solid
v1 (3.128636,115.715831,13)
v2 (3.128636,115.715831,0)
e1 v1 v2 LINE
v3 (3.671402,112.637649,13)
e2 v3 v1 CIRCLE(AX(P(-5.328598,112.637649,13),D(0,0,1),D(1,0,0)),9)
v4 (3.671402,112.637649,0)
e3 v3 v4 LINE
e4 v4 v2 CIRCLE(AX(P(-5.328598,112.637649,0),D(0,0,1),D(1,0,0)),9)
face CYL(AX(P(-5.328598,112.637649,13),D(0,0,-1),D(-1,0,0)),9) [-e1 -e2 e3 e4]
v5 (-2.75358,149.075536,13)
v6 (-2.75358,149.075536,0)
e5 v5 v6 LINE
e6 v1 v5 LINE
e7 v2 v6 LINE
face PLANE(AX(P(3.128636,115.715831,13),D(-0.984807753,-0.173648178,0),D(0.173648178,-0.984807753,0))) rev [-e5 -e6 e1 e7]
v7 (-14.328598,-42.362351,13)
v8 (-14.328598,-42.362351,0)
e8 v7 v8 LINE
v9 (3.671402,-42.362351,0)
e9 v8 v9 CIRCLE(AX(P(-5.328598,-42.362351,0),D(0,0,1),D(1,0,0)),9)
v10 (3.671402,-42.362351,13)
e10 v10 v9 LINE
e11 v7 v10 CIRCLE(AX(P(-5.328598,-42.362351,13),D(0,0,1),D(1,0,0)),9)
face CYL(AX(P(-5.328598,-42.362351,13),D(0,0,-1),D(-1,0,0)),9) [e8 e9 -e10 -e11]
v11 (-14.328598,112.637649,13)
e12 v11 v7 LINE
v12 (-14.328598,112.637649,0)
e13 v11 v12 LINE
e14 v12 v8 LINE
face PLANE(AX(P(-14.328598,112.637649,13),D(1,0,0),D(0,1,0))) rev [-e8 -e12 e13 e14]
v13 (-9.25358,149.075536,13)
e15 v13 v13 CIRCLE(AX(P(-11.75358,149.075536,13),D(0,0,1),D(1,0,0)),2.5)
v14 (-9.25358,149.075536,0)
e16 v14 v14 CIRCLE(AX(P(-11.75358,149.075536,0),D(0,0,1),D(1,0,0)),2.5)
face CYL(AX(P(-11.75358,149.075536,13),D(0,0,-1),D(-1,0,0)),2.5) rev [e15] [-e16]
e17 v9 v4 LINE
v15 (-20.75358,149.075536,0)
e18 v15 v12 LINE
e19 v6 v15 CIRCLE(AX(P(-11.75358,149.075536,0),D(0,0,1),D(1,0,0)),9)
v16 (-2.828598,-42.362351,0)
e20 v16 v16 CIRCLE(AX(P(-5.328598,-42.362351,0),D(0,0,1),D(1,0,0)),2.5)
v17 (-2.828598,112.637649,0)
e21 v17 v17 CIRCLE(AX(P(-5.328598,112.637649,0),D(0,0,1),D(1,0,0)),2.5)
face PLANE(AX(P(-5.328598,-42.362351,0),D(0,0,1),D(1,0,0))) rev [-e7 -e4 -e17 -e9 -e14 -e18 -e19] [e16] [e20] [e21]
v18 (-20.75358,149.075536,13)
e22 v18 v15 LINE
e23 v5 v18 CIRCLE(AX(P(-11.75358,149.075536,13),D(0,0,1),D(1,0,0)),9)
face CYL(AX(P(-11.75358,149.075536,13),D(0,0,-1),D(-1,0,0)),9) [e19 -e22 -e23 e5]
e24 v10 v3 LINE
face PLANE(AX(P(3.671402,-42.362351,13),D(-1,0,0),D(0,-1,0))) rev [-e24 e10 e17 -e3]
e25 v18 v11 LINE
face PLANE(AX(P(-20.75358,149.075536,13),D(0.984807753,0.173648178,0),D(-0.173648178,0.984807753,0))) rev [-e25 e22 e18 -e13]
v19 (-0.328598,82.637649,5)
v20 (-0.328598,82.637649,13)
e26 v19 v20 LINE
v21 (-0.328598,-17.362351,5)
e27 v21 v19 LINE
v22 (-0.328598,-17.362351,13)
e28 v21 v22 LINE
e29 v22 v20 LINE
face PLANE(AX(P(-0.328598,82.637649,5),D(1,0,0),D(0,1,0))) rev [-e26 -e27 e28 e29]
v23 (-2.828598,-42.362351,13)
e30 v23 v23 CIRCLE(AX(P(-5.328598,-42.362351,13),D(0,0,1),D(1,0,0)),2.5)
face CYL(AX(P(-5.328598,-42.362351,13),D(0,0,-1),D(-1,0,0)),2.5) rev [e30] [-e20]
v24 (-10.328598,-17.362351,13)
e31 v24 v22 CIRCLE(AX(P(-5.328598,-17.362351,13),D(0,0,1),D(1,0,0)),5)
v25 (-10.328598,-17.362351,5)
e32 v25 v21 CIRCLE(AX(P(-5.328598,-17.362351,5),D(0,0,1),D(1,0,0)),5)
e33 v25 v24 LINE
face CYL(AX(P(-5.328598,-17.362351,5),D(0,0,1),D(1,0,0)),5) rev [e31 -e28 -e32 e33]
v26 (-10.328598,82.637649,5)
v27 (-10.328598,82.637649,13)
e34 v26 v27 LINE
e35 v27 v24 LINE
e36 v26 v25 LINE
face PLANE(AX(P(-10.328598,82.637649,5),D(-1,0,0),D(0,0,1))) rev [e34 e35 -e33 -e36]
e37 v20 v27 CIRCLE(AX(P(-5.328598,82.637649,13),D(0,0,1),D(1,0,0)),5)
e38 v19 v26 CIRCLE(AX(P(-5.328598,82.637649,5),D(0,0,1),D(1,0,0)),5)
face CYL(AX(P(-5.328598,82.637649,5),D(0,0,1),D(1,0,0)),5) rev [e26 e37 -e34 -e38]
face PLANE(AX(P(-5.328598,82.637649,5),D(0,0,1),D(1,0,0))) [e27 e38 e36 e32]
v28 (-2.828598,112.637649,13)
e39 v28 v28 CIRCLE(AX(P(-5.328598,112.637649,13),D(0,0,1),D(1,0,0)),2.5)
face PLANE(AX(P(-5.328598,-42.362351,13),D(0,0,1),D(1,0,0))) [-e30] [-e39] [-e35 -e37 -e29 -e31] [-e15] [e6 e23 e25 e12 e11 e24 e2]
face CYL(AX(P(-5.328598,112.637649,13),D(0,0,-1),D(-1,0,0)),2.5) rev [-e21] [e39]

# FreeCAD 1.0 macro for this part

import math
import FreeCAD as App
import Part
import Sketcher
Q = App.Units.Quantity

doc = App.newDocument("Part")
body = doc.addObject("PartDesign::Body", "Body")

# Sketch on XY plane
sketch1 = doc.addObject("Sketcher::SketchObject", "Sketch")
body.addObject(sketch1)
sketch1.AttachmentSupport = (doc.XY_Plane, [""])
sketch1.MapMode = "FlatFace"
sketch1.addGeometry([
    Part.LineSegment(App.Vector(-14.3, 112.6, 0), App.Vector(-14.3, -42.4, 0)),  # 0
    Part.ArcOfCircle(Part.Circle(App.Vector(-5.3, -42.4, 0), App.Vector(0, 0, 1), 9), math.radians(180), math.radians(360)),  # 1
    Part.LineSegment(App.Vector(3.7, -42.4, 0), App.Vector(3.7, 112.6, 0)),  # 2
    Part.ArcOfCircle(Part.Circle(App.Vector(-5.3, 112.6, 0), App.Vector(0, 0, 1), 9), math.radians(0), math.radians(20)),  # 3
    Part.LineSegment(App.Vector(3.1, 115.7, 0), App.Vector(-2.8, 149.1, 0)),  # 4
    Part.ArcOfCircle(Part.Circle(App.Vector(-11.8, 149.1, 0), App.Vector(0, 0, 1), 9), math.radians(0), math.radians(180)),  # 5
    Part.LineSegment(App.Vector(-20.8, 149.1, 0), App.Vector(-14.3, 112.6, 0)),  # 6
    Part.Circle(App.Vector(-5.3, -42.4, 0), App.Vector(0, 0, 1), 2.5),  # 7
    Part.Circle(App.Vector(-11.8, 149.1, 0), App.Vector(0, 0, 1), 2.5),  # 8
    Part.Circle(App.Vector(-5.3, 112.6, 0), App.Vector(0, 0, 1), 2.5),  # 9
], False)
sketch1.addConstraint([
    Sketcher.Constraint("Tangent", 0, 2, 1, 1),
    Sketcher.Constraint("Tangent", 1, 2, 2, 1),
    Sketcher.Constraint("Tangent", 2, 2, 3, 1),
    Sketcher.Constraint("Coincident", 3, 2, 4, 1),
    Sketcher.Constraint("Coincident", 4, 2, 5, 1),
    Sketcher.Constraint("Coincident", 5, 2, 6, 1),
    Sketcher.Constraint("Coincident", 6, 2, 0, 1),
    Sketcher.Constraint("Vertical", 0),
    Sketcher.Constraint("Vertical", 2),
    Sketcher.Constraint("Coincident", 7, 3, 1, 3),
    Sketcher.Constraint("Coincident", 8, 3, 5, 3),
    Sketcher.Constraint("Coincident", 9, 3, 3, 3),
    Sketcher.Constraint("Equal", 1, 3),
    Sketcher.Constraint("Equal", 3, 5),
    Sketcher.Constraint("Equal", 7, 8),
    Sketcher.Constraint("Equal", 8, 9),
    Sketcher.Constraint("Parallel", 4, 6),
    Sketcher.Constraint("Horizontal", 8, 3, 4, 2),
    Sketcher.Constraint("Horizontal", 4, 2, 5, 2),
    Sketcher.Constraint("Horizontal", 2, 2, 6, 2),
    Sketcher.Constraint("Diameter", 7, 5.0),
    Sketcher.Constraint("Radius", 1, 9.0),
    Sketcher.Constraint("DistanceY", 0, 2, 0, 1, 155.0),
    Sketcher.Constraint("Angle", 4, Q("100 deg")),
    Sketcher.Constraint("Distance", 6, 37.0),
    Sketcher.Constraint("DistanceY", 1, 3, -1, 1, 42.362351),
    Sketcher.Constraint("DistanceX", 5, 3, -1, 1, 11.75358),
])
pad1 = doc.addObject("PartDesign::Pad", "Pad")
body.addObject(pad1)
pad1.Profile = sketch1
pad1.Length = 13

# Sketch on XY plane
sketch2 = doc.addObject("Sketcher::SketchObject", "Sketch001")
body.addObject(sketch2)
sketch2.AttachmentSupport = (doc.XY_Plane, [""])
sketch2.MapMode = "FlatFace"
sketch2.AttachmentOffset = App.Placement(App.Vector(0, 0, 13), App.Rotation())
sketch2.addGeometry([
    Part.LineSegment(App.Vector(0, -17, 0), App.Vector(0, 83, 0)),
    Part.ArcOfCircle(Part.Circle(App.Vector(-5, 83, 0), App.Vector(0, 0, 1), 5), math.radians(0), math.radians(180)),
    Part.LineSegment(App.Vector(-10, 83, 0), App.Vector(-10, -17, 0)),
    Part.ArcOfCircle(Part.Circle(App.Vector(-5, -17, 0), App.Vector(0, 0, 1), 5), math.radians(180), math.radians(360)),
], False)
sketch2.addConstraint([
    Sketcher.Constraint("Tangent", 0, 2, 1, 1),
    Sketcher.Constraint("Tangent", 1, 2, 2, 1),
    Sketcher.Constraint("Tangent", 2, 2, 3, 1),
    Sketcher.Constraint("Tangent", 3, 2, 0, 1),
    Sketcher.Constraint("Vertical", 0),
    Sketcher.Constraint("Vertical", 2),
    Sketcher.Constraint("Radius", 1, 5.0),
    Sketcher.Constraint("DistanceY", 0, 1, 0, 2, 100.0),
    Sketcher.Constraint("DistanceY", -1, 1, 1, 3, 82.637649),
    Sketcher.Constraint("DistanceX", 1, 3, -1, 1, 5.328598),
])
pocket1 = doc.addObject("PartDesign::Pocket", "Pocket")
body.addObject(pocket1)
pocket1.Profile = sketch2
pocket1.Length = 8

doc.recompute()
